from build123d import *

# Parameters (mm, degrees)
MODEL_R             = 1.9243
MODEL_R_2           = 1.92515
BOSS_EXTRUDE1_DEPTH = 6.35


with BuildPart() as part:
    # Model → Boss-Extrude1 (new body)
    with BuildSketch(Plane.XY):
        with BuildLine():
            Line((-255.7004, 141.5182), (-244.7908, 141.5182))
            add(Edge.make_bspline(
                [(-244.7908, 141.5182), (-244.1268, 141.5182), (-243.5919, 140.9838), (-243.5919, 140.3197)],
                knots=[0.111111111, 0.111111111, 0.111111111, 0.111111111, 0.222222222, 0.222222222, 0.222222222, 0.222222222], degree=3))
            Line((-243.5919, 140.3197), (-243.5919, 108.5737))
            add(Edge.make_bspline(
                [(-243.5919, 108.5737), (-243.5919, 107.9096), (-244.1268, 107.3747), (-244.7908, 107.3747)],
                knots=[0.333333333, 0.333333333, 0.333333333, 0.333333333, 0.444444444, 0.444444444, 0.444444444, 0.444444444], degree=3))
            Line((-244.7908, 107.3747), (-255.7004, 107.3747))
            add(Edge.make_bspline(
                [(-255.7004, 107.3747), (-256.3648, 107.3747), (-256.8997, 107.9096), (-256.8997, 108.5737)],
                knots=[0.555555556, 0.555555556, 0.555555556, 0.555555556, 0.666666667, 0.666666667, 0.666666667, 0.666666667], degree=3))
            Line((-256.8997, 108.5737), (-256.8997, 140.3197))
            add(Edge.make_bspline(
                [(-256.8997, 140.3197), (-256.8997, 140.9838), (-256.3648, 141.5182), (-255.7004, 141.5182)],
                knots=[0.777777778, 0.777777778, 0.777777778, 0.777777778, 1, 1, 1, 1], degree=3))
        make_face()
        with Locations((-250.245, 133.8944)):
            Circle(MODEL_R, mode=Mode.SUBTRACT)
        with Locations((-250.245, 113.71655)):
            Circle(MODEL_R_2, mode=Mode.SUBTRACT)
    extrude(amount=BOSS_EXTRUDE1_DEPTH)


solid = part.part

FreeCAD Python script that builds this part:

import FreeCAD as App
import Part
import Sketcher

doc = App.newDocument("Part")
params = doc.addObject("Spreadsheet::Sheet", "Params")
for row, (alias, value) in enumerate([
    ("pad1_length", "0.25 in"),
], start=1):
    params.set(f"A{row}", alias)
    params.set(f"B{row}", "=" + value)
    params.setAlias(f"B{row}", alias)

body = doc.addObject("PartDesign::Body", "Body")

# Sketch on XY plane
sketch1 = doc.addObject("Sketcher::SketchObject", "Sketch")
body.addObject(sketch1)
sketch1.AttachmentSupport = (doc.XY_Plane, [""])
sketch1.MapMode = "FlatFace"
sketch1.addGeometry(Part.LineSegment(App.Vector(-244.7908, 141.5182, 0), App.Vector(-255.7004, 141.5182, 0)), False)
sketch1.addGeometry(Part.BSplineCurve([App.Vector(-256.8997, 140.3197, 0), App.Vector(-256.8997, 140.9838, 0), App.Vector(-256.3648, 141.5182, 0), App.Vector(-255.7004, 141.5182, 0)], [4, 4], [0.777777778, 1], False, 3, [1, 1, 1, 1], False), False)
sketch1.addGeometry(Part.LineSegment(App.Vector(-256.8997, 140.3197, 0), App.Vector(-256.8997, 108.5737, 0)), False)
sketch1.addGeometry(Part.BSplineCurve([App.Vector(-255.7004, 107.3747, 0), App.Vector(-256.3648, 107.3747, 0), App.Vector(-256.8997, 107.9096, 0), App.Vector(-256.8997, 108.5737, 0)], [4, 4], [0.555555556, 0.666666667], False, 3, [1, 1, 1, 1], False), False)
sketch1.addGeometry(Part.LineSegment(App.Vector(-255.7004, 107.3747, 0), App.Vector(-244.7908, 107.3747, 0)), False)
sketch1.addGeometry(Part.BSplineCurve([App.Vector(-243.5919, 108.5737, 0), App.Vector(-243.5919, 107.9096, 0), App.Vector(-244.1268, 107.3747, 0), App.Vector(-244.7908, 107.3747, 0)], [4, 4], [0.333333333, 0.444444444], False, 3, [1, 1, 1, 1], False), False)
sketch1.addGeometry(Part.LineSegment(App.Vector(-243.5919, 108.5737, 0), App.Vector(-243.5919, 140.3197, 0)), False)
sketch1.addGeometry(Part.BSplineCurve([App.Vector(-244.7908, 141.5182, 0), App.Vector(-244.1268, 141.5182, 0), App.Vector(-243.5919, 140.9838, 0), App.Vector(-243.5919, 140.3197, 0)], [4, 4], [0.111111111, 0.222222222], False, 3, [1, 1, 1, 1], False), False)
sketch1.addGeometry(Part.Circle(App.Vector(-250.245, 113.71655, 0), App.Vector(0, 0, 1), 1.92515), False)
sketch1.addGeometry(Part.Circle(App.Vector(-250.245, 133.8944, 0), App.Vector(0, 0, 1), 1.9243), False)
sketch1.addConstraint(Sketcher.Constraint("Block", 1))
sketch1.addConstraint(Sketcher.Constraint("Block", 3))
sketch1.addConstraint(Sketcher.Constraint("Block", 5))
sketch1.addConstraint(Sketcher.Constraint("Block", 7))
sketch1.addConstraint(Sketcher.Constraint("Coincident", 0, 2, 1, 2))
sketch1.addConstraint(Sketcher.Constraint("Coincident", 1, 1, 2, 1))
sketch1.addConstraint(Sketcher.Constraint("Coincident", 2, 2, 3, 2))
sketch1.addConstraint(Sketcher.Constraint("Coincident", 3, 1, 4, 1))
sketch1.addConstraint(Sketcher.Constraint("Coincident", 4, 2, 5, 2))
sketch1.addConstraint(Sketcher.Constraint("Coincident", 5, 1, 6, 1))
sketch1.addConstraint(Sketcher.Constraint("Coincident", 6, 2, 7, 2))
sketch1.addConstraint(Sketcher.Constraint("Coincident", 7, 1, 0, 1))
sketch1.addConstraint(Sketcher.Constraint("Vertical", 8, 3, 9, 3))
sketch1.addConstraint(Sketcher.Constraint("Diameter", 8, 3.8503))
sketch1.addConstraint(Sketcher.Constraint("Diameter", 9, 3.8486))
sketch1.addConstraint(Sketcher.Constraint("DistanceX", 8, 3, -1, 1, 250.245))
sketch1.addConstraint(Sketcher.Constraint("DistanceY", -1, 1, 9, 3, 133.8944))
sketch1.addConstraint(Sketcher.Constraint("DistanceY", -1, 1, 8, 3, 113.71655))
pad1 = doc.addObject("PartDesign::Pad", "Pad")
body.addObject(pad1)
pad1.Profile = sketch1
pad1.setExpression("Length", "Params.pad1_length")

doc.recompute()
